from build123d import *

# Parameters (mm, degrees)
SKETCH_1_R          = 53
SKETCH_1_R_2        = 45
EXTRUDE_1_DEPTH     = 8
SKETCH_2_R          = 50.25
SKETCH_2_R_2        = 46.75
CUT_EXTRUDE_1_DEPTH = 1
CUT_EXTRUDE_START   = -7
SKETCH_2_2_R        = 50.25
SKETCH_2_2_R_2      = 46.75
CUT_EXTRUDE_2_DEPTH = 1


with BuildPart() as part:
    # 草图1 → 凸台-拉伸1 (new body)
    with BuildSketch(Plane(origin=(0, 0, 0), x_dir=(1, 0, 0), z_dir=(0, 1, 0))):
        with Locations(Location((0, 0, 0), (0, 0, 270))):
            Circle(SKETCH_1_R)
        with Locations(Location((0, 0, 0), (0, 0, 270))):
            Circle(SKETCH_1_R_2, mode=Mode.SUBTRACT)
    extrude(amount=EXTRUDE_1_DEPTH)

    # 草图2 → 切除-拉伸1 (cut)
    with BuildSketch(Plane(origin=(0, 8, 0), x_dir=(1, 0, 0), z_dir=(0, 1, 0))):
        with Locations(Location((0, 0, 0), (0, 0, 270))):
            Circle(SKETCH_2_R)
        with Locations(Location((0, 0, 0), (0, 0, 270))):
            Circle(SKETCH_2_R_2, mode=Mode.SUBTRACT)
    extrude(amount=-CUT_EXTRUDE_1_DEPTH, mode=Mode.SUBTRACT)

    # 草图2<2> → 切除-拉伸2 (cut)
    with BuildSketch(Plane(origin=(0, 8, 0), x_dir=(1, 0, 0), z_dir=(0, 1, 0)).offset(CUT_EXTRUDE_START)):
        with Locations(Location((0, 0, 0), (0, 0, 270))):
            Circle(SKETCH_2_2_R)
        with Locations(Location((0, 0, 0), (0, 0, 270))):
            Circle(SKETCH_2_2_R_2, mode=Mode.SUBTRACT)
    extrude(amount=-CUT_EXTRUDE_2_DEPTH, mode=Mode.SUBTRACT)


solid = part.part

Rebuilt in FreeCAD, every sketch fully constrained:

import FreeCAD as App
import Part
import Sketcher

V = App.Vector

doc = App.newDocument("Part")
body = doc.addObject("PartDesign::Body", "Body")

# Sketch on XZ plane
sketch1 = body.newObject("Sketcher::SketchObject", "Sketch")
sketch1.AttachmentSupport = (doc.getObject("XZ_Plane"), [""])
sketch1.MapMode = "FlatFace"
sketch1.addGeometry([
    Part.Circle(V(0, 0, 0), V(0, 0, 1), 53),
    Part.Circle(V(0, 0, 0), V(0, 0, 1), 45),
], False)
sketch1.addConstraint([
    Sketcher.Constraint("Coincident", 0, 3, -1, 1),
    Sketcher.Constraint("Coincident", 1, 3, -1, 1),
    Sketcher.Constraint("Diameter", 0, 106.0),
    Sketcher.Constraint("Diameter", 1, 90.0),
])
pad1 = body.newObject("PartDesign::Pad", "Pad")
pad1.Profile = sketch1
pad1.Length = 8
pad1.Reversed = True

# Sketch on XZ plane
sketch2 = body.newObject("Sketcher::SketchObject", "Sketch001")
sketch2.AttachmentSupport = (doc.getObject("XZ_Plane"), [""])
sketch2.MapMode = "FlatFace"
sketch2.AttachmentOffset = App.Placement(V(0, 0, -8), App.Rotation())
sketch2.addGeometry([
    Part.Circle(V(0, 0, 0), V(0, 0, 1), 50.25),
    Part.Circle(V(0, 0, 0), V(0, 0, 1), 46.75),
], False)
sketch2.addConstraint([
    Sketcher.Constraint("Coincident", 0, 3, -1, 1),
    Sketcher.Constraint("Coincident", 1, 3, -1, 1),
    Sketcher.Constraint("Diameter", 0, 100.5),
    Sketcher.Constraint("Diameter", 1, 93.5),
])
pocket1 = body.newObject("PartDesign::Pocket", "Pocket")
pocket1.Profile = sketch2
pocket1.Length = 1
pocket1.Reversed = True

# Sketch on XZ plane
sketch3 = body.newObject("Sketcher::SketchObject", "Sketch002")
sketch3.AttachmentSupport = (doc.getObject("XZ_Plane"), [""])
sketch3.MapMode = "FlatFace"
sketch3.AttachmentOffset = App.Placement(V(0, 0, -1), App.Rotation())
sketch3.addGeometry([
    Part.Circle(V(0, 0, 0), V(0, 0, 1), 50.25),
    Part.Circle(V(0, 0, 0), V(0, 0, 1), 46.75),
], False)
sketch3.addConstraint([
    Sketcher.Constraint("Coincident", 0, 3, -1, 1),
    Sketcher.Constraint("Coincident", 1, 3, -1, 1),
    Sketcher.Constraint("Diameter", 0, 100.5),
    Sketcher.Constraint("Diameter", 1, 93.5),
])
pocket2 = body.newObject("PartDesign::Pocket", "Pocket001")
pocket2.Profile = sketch3
pocket2.Length = 1
pocket2.Reversed = True

doc.recompute()
